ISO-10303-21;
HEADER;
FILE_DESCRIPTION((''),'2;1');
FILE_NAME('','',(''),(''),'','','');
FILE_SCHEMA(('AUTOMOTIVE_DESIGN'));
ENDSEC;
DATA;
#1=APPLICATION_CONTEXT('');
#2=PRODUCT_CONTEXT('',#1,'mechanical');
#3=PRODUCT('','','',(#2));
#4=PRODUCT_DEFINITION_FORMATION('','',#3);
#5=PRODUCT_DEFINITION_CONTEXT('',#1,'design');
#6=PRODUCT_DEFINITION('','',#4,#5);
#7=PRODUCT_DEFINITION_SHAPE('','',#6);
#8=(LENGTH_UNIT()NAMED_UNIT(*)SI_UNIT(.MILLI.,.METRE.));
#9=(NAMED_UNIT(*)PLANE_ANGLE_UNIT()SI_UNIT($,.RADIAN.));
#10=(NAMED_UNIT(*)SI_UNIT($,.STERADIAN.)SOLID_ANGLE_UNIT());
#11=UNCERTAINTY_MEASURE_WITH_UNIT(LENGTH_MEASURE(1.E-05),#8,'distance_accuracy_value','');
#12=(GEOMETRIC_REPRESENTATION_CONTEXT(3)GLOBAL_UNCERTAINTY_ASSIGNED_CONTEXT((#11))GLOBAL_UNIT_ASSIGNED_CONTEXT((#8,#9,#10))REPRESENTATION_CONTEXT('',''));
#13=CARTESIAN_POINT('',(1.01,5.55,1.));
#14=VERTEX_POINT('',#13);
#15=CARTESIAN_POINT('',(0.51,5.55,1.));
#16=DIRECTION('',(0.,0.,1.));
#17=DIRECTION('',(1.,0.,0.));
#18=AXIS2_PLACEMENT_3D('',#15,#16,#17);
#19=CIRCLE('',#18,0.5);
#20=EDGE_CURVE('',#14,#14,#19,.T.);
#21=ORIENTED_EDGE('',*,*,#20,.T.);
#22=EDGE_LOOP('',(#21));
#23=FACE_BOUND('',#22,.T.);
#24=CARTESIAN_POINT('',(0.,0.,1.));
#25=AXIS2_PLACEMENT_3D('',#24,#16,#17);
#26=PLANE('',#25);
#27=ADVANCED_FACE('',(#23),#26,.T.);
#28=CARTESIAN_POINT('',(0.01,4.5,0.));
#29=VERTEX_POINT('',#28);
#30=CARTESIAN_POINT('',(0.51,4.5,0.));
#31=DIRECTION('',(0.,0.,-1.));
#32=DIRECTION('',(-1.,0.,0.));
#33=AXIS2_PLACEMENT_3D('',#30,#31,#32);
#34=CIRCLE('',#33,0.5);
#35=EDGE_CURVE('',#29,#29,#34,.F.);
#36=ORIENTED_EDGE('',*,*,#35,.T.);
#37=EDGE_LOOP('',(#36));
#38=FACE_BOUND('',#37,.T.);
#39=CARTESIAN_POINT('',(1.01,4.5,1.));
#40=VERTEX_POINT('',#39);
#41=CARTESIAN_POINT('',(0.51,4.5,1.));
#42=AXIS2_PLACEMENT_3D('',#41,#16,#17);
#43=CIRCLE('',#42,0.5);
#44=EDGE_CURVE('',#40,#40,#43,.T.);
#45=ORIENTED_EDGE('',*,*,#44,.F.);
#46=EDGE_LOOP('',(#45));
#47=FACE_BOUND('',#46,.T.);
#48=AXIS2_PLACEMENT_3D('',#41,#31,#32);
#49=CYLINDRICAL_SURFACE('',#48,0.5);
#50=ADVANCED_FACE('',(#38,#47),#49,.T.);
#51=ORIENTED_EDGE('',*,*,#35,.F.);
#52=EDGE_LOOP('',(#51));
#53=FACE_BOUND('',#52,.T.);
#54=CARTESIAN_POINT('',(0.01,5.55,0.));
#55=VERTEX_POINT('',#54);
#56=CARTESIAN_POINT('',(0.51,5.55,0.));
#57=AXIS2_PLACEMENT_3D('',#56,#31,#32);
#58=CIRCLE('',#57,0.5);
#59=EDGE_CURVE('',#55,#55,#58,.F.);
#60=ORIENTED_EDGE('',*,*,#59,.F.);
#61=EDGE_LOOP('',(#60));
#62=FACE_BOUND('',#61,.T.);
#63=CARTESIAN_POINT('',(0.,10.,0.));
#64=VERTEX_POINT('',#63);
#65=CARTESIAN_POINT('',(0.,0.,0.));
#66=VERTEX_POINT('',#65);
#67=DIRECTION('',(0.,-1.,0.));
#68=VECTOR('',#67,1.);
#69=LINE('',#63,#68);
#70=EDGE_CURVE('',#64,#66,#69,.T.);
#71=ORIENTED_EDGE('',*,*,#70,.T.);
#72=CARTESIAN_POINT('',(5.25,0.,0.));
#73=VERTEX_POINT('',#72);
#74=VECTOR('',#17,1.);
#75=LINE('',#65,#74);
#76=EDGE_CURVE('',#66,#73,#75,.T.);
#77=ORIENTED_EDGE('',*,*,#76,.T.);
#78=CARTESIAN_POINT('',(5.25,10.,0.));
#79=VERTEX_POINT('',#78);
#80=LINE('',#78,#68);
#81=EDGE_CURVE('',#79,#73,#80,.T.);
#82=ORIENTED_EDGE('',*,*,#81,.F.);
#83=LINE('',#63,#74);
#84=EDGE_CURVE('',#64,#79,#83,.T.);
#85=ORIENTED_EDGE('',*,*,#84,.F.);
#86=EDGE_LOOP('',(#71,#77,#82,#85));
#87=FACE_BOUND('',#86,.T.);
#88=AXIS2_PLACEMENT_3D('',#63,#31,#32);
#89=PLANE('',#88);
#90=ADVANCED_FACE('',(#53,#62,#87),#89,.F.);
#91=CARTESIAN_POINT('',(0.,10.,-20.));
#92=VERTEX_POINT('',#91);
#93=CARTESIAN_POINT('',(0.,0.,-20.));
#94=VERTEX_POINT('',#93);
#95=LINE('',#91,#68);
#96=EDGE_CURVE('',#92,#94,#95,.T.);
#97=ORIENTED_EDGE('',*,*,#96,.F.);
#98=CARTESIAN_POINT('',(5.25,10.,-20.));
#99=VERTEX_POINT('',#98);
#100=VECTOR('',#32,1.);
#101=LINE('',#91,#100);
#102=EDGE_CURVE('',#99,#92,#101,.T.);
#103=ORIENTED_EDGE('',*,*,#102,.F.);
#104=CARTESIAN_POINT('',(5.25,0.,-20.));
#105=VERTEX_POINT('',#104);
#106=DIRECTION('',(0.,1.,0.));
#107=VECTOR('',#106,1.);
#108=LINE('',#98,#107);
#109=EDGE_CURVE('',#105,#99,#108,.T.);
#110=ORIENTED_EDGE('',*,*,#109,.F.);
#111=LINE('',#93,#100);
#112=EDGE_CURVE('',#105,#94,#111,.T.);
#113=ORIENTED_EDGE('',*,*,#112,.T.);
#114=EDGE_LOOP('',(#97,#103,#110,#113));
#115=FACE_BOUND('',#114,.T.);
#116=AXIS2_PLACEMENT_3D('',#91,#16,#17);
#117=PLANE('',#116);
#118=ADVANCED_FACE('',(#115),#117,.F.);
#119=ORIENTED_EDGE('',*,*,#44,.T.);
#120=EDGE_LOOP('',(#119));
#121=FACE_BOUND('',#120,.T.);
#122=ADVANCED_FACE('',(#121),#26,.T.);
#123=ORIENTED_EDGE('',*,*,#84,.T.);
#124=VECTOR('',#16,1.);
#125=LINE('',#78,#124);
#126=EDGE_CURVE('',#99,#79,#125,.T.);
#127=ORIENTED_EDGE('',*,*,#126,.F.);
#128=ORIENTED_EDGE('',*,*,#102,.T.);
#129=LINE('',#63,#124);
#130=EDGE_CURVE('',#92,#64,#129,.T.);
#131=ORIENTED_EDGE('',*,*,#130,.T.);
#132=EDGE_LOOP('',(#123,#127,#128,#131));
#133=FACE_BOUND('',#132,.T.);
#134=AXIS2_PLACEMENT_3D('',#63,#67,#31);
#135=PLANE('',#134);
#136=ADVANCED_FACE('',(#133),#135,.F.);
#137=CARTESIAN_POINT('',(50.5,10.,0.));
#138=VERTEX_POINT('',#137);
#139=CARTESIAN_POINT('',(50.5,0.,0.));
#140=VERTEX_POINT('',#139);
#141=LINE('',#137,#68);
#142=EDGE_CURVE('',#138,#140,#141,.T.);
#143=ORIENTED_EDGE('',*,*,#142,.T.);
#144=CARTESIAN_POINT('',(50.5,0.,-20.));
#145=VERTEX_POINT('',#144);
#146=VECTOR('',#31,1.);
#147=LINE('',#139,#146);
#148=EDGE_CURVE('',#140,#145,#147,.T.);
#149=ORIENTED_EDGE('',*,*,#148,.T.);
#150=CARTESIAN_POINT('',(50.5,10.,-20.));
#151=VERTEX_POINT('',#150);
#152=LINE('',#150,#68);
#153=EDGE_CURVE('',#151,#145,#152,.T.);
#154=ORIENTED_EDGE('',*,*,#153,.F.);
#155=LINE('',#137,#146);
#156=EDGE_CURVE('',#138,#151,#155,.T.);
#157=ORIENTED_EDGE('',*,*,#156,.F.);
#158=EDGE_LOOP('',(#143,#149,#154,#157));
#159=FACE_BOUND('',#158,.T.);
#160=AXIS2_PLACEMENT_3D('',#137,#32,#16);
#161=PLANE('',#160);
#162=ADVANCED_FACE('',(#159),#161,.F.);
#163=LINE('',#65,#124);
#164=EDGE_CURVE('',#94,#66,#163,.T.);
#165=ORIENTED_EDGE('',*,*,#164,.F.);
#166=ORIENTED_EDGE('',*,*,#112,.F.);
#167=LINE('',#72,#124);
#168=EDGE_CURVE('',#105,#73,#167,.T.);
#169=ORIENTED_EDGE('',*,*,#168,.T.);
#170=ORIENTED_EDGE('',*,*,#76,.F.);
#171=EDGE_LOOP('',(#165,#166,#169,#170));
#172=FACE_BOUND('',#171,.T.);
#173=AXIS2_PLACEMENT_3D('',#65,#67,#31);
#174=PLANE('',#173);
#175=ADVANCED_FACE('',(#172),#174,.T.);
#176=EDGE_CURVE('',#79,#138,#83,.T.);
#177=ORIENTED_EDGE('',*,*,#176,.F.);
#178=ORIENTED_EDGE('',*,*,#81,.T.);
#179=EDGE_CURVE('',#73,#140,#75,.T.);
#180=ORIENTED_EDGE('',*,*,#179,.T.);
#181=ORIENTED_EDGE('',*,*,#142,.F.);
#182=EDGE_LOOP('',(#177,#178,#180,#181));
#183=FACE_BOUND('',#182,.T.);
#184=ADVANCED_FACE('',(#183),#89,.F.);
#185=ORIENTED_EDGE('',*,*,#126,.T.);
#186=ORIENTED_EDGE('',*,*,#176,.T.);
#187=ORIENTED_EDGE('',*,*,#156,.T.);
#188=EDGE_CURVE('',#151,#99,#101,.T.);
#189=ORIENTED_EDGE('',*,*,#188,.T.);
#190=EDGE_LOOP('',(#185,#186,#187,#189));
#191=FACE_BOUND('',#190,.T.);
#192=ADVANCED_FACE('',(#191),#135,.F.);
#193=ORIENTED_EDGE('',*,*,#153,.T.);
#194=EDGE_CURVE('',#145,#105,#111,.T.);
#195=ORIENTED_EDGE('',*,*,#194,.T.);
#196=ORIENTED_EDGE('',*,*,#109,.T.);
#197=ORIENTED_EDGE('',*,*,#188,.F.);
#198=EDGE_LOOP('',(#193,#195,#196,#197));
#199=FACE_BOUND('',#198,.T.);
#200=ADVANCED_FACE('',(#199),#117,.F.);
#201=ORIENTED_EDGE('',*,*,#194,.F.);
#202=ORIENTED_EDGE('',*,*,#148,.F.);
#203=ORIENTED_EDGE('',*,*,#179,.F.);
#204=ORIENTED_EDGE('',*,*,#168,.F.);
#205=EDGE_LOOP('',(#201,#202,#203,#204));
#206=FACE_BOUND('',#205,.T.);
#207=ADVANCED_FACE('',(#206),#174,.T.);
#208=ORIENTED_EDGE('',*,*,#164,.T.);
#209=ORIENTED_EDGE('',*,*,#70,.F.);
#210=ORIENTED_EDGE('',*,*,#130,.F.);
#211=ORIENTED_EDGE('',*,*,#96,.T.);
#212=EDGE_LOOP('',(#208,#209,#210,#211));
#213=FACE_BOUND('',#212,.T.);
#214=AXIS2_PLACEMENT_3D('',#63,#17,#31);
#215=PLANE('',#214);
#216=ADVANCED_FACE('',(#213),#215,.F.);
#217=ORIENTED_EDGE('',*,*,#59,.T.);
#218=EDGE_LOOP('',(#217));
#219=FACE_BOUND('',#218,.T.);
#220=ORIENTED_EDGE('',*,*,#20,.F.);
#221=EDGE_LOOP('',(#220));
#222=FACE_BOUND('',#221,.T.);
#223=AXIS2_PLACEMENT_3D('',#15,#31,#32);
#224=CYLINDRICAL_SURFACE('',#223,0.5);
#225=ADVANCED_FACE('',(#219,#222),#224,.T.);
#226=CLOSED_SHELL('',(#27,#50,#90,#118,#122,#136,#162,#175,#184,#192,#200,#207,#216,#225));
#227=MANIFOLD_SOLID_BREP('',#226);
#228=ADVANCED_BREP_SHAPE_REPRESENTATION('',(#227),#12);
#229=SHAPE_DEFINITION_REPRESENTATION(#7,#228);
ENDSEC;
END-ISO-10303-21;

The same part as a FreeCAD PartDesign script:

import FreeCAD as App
import Part
import Sketcher

V = App.Vector

doc = App.newDocument("Part")
params = doc.addObject("Spreadsheet::Sheet", "Params")
for row, (alias, value) in enumerate([
    ("sketch1_height", "20 mm"),
    ("sketch1_width", "50.5 mm"),
    ("pad1_length", "10 mm"),
    ("sketch2_diameter", "1 mm"),
    ("pad2_length", "1 mm"),
], start=1):
    params.set(f"A{row}", alias)
    params.set(f"B{row}", "=" + value)
    params.setAlias(f"B{row}", alias)

body = doc.addObject("PartDesign::Body", "Body")

# Sketch on XZ plane
sketch1 = body.newObject("Sketcher::SketchObject", "Sketch")
sketch1.AttachmentSupport = (doc.getObject("XZ_Plane"), [""])
sketch1.MapMode = "FlatFace"
sketch1.addGeometry(Part.LineSegment(V(0, -20, 0), V(0, 0, 0)), False)
sketch1.addGeometry(Part.LineSegment(V(0, 0, 0), V(50, 0, 0)), False)
sketch1.addGeometry(Part.LineSegment(V(50, 0, 0), V(50, -20, 0)), False)
sketch1.addGeometry(Part.LineSegment(V(50, -20, 0), V(0, -20, 0)), False)
sketch1.addConstraint(Sketcher.Constraint("Coincident", 0, 2, 1, 1))
sketch1.addConstraint(Sketcher.Constraint("Coincident", 1, 2, 2, 1))
sketch1.addConstraint(Sketcher.Constraint("Coincident", 2, 2, 3, 1))
sketch1.addConstraint(Sketcher.Constraint("Coincident", 3, 2, 0, 1))
sketch1.addConstraint(Sketcher.Constraint("Vertical", 0))
sketch1.addConstraint(Sketcher.Constraint("Horizontal", 1))
sketch1.addConstraint(Sketcher.Constraint("Vertical", 2))
sketch1.addConstraint(Sketcher.Constraint("Horizontal", 3))
sketch1.addConstraint(Sketcher.Constraint("Coincident", 0, 2, -1, 1))
sketch1.addConstraint(Sketcher.Constraint("DistanceY", 0, 1, 0, 2, 20.0))
sketch1.addConstraint(Sketcher.Constraint("DistanceX", 1, 1, 1, 2, 50.5))
sketch1.setExpression("Constraints[9]", "Params.sketch1_height")
sketch1.setExpression("Constraints[10]", "Params.sketch1_width")
pad1 = body.newObject("PartDesign::Pad", "Pad")
pad1.Profile = sketch1
pad1.setExpression("Length", "Params.pad1_length")
pad1.Reversed = True

# Sketch on XY plane
sketch2 = body.newObject("Sketcher::SketchObject", "Sketch001")
sketch2.AttachmentSupport = (doc.getObject("XY_Plane"), [""])
sketch2.MapMode = "FlatFace"
sketch2.addGeometry(Part.Circle(V(0.5, 5.5, 0), V(0, 0, 1), 0.5), False)
sketch2.addGeometry(Part.Circle(V(0.5, 4.5, 0), V(0, 0, 1), 0.5), False)
sketch2.addConstraint(Sketcher.Constraint("Equal", 0, 1))
sketch2.addConstraint(Sketcher.Constraint("Vertical", 0, 3, 1, 3))
sketch2.addConstraint(Sketcher.Constraint("Diameter", 0, 1.0))
sketch2.addConstraint(Sketcher.Constraint("DistanceY", -1, 1, 1, 3, 4.5))
sketch2.addConstraint(Sketcher.Constraint("DistanceX", -1, 1, 0, 3, 0.51))
sketch2.addConstraint(Sketcher.Constraint("DistanceY", -1, 1, 0, 3, 5.55))
sketch2.setExpression("Constraints[2]", "Params.sketch2_diameter")
pad2 = body.newObject("PartDesign::Pad", "Pad001")
pad2.Profile = sketch2
pad2.setExpression("Length", "Params.pad2_length")

doc.recompute()
